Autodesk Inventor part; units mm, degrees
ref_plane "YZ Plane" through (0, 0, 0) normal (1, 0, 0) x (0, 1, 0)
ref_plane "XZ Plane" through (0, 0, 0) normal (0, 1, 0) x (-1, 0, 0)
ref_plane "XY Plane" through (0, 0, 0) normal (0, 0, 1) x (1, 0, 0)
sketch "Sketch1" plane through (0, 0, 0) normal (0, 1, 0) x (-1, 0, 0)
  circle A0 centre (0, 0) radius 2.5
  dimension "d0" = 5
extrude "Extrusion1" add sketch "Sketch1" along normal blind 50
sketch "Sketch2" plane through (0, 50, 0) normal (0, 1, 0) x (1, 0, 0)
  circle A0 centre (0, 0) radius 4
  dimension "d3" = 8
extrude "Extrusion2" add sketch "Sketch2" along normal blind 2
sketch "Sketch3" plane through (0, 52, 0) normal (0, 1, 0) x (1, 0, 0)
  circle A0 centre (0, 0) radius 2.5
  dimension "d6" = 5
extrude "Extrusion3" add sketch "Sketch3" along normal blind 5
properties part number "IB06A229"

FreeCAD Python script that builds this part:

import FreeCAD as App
import Part
import Sketcher

V = App.Vector
Q = App.Units.Quantity

doc = App.newDocument("Part")
body = doc.addObject("PartDesign::Body", "Body")

# Sketch on XZ plane
sketch1 = body.newObject("Sketcher::SketchObject", "Sketch")
sketch1.AttachmentSupport = (doc.getObject("XZ_Plane"), [""])
sketch1.MapMode = "FlatFace"
sketch1.addGeometry(Part.Circle(V(0, 0, 0), V(0, 0, 1), 2.5), False)
sketch1.addConstraint(Sketcher.Constraint("Coincident", 0, 3, -1, 1))
sketch1.addConstraint(Sketcher.Constraint("Diameter", 0, Q("5 mm")))
pad1 = body.newObject("PartDesign::Pad", "Pad")
pad1.Profile = sketch1
pad1.Length = 50
pad1.Reversed = True

# Sketch on XZ plane
sketch2 = body.newObject("Sketcher::SketchObject", "Sketch001")
sketch2.AttachmentSupport = (doc.getObject("XZ_Plane"), [""])
sketch2.MapMode = "FlatFace"
sketch2.AttachmentOffset = App.Placement(V(0, 0, -50), App.Rotation())
sketch2.addGeometry(Part.Circle(V(0, 0, 0), V(0, 0, 1), 4), False)
sketch2.addConstraint(Sketcher.Constraint("Coincident", 0, 3, -1, 1))
sketch2.addConstraint(Sketcher.Constraint("Diameter", 0, Q("8 mm")))
pad2 = body.newObject("PartDesign::Pad", "Pad001")
pad2.Profile = sketch2
pad2.Length = 2
pad2.Reversed = True

# Sketch on XZ plane
sketch3 = body.newObject("Sketcher::SketchObject", "Sketch002")
sketch3.AttachmentSupport = (doc.getObject("XZ_Plane"), [""])
sketch3.MapMode = "FlatFace"
sketch3.AttachmentOffset = App.Placement(V(0, 0, -52), App.Rotation())
sketch3.addGeometry(Part.Circle(V(0, 0, 0), V(0, 0, 1), 2.5), False)
sketch3.addConstraint(Sketcher.Constraint("Coincident", 0, 3, -1, 1))
sketch3.addConstraint(Sketcher.Constraint("Diameter", 0, Q("5 mm")))
pad3 = body.newObject("PartDesign::Pad", "Pad002")
pad3.Profile = sketch3
pad3.Length = 5
pad3.Reversed = True

doc.recompute()
